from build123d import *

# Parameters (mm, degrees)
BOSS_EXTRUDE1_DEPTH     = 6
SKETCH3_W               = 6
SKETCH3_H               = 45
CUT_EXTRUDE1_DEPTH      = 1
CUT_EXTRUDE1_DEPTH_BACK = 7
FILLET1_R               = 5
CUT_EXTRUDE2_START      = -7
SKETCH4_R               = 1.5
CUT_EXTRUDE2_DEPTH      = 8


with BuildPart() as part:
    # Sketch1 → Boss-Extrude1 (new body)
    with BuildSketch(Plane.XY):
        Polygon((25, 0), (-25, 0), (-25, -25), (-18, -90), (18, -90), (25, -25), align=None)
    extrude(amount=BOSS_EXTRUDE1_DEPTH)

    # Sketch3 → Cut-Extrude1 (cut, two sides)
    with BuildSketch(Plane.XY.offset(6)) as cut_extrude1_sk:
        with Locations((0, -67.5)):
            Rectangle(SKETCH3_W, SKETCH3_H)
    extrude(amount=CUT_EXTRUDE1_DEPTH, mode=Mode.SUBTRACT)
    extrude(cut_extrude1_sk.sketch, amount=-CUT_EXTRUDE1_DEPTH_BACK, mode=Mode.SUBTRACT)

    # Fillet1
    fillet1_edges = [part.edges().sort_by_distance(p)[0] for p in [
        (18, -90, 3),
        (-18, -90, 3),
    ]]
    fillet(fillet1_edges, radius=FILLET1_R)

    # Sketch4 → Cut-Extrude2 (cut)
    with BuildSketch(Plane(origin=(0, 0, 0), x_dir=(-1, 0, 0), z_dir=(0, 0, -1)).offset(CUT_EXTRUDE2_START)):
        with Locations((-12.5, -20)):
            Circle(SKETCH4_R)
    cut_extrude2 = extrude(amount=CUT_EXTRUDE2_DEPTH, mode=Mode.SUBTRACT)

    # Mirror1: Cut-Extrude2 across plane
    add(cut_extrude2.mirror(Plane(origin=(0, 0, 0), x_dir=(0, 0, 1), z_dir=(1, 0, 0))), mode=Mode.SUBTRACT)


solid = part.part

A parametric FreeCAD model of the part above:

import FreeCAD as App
import Part
import Sketcher


def edges_at(feature, points):
    """Names of the edges that pass closest to the given points."""
    edges = feature.Shape.Edges
    near = lambda p: min(range(len(edges)), key=lambda i: edges[i].distToShape(Part.Vertex(*p))[0])
    return sorted({f"Edge{near(p) + 1}" for p in points})


def add_polygon(sketch, points):
    """Adds a closed chain of lines whose ends are joined by coincident constraints."""
    first, n = sketch.GeometryCount, len(points)
    for a, b in zip(points, points[1:] + points[:1]):
        sketch.addGeometry(Part.LineSegment(App.Vector(*a, 0), App.Vector(*b, 0)), False)
    for i in range(n):
        sketch.addConstraint(Sketcher.Constraint("Coincident", first + i, 2, first + (i + 1) % n, 1))

doc = App.newDocument("Part")
body = doc.addObject("PartDesign::Body", "Body")

# Sketch on XY plane
sketch1 = body.newObject("Sketcher::SketchObject", "Sketch")
sketch1.AttachmentSupport = (doc.getObject("XY_Plane"), [""])
sketch1.MapMode = "FlatFace"
add_polygon(sketch1, [(25, 0), (-25, 0), (-25, -25), (-18, -90), (18, -90), (25, -25)])  # lines 0-5
sketch1.addConstraint([
    Sketcher.Constraint("Horizontal", 0),
    Sketcher.Constraint("Vertical", 1),
    Sketcher.Constraint("Horizontal", 3),
    Sketcher.Constraint("Vertical", 5),
    Sketcher.Constraint("Symmetric", 0, 2, 5, 2, -1, 1),
    Sketcher.Constraint("Horizontal", 1, 2, 4, 2),
    Sketcher.Constraint("Equal", 2, 4),
    Sketcher.Constraint("DistanceX", 0, 2, 0, 1, 50.0),
    Sketcher.Constraint("DistanceX", 3, 1, 3, 2, 36.0),
    Sketcher.Constraint("DistanceY", 1, 2, 1, 1, 25.0),
    Sketcher.Constraint("DistanceY", 2, 2, -1, 1, 90.0),
])
pad1 = body.newObject("PartDesign::Pad", "Pad")
pad1.Profile = sketch1
pad1.Length = 6

# Sketch on XY plane
sketch2 = body.newObject("Sketcher::SketchObject", "Sketch001")
sketch2.AttachmentSupport = (doc.getObject("XY_Plane"), [""])
sketch2.MapMode = "FlatFace"
sketch2.AttachmentOffset = App.Placement(App.Vector(0, 0, 6), App.Rotation())
add_polygon(sketch2, [(-3, -45), (-3, -90), (3, -90), (3, -45)])  # lines 0-3
sketch2.addConstraint([
    Sketcher.Constraint("Vertical", 0),
    Sketcher.Constraint("Horizontal", 1),
    Sketcher.Constraint("Vertical", 2),
    Sketcher.Constraint("Horizontal", 3),
    Sketcher.Constraint("DistanceX", 1, 1, 1, 2, 6.0),
    Sketcher.Constraint("DistanceY", 0, 2, 0, 1, 45.0),
    Sketcher.Constraint("DistanceX", 0, 2, -1, 1, 3.0),
    Sketcher.Constraint("DistanceY", 0, 2, -1, 1, 90.0),
])
pocket1 = body.newObject("PartDesign::Pocket", "Pocket")
pocket1.Profile = sketch2
pocket1.Type = "ThroughAll"
pocket1.Midplane = True
doc.recompute()

fillet = body.newObject("PartDesign::Fillet", "Fillet")
fillet.Base = (pocket1, edges_at(pocket1, [(18, -90, 3), (-18, -90, 3)]))
fillet.Radius = 5

# Sketch on XY plane
sketch3 = body.newObject("Sketcher::SketchObject", "Sketch002")
sketch3.AttachmentSupport = (doc.getObject("XY_Plane"), [""])
sketch3.MapMode = "FlatFace"
sketch3.AttachmentOffset = App.Placement(App.Vector(0, 0, 7), App.Rotation())
sketch3.addGeometry(Part.Circle(App.Vector(12.5, -20, 0), App.Vector(0, 0, 1), 1.5), False)
sketch3.addConstraint([
    Sketcher.Constraint("Diameter", 0, 3.0),
    Sketcher.Constraint("DistanceY", 0, 3, -1, 1, 20.0),
    Sketcher.Constraint("DistanceX", -1, 1, 0, 3, 12.5),
])
pocket2 = body.newObject("PartDesign::Pocket", "Pocket001")
pocket2.Profile = sketch3
pocket2.Length = 8
doc.recompute()

mirrored = body.newObject("PartDesign::Mirrored", "Mirrored")
mirrored.Originals = [pocket2]
mirrored.MirrorPlane = (doc.getObject("YZ_Plane"), [""])
body.Tip = mirrored

doc.recompute()
